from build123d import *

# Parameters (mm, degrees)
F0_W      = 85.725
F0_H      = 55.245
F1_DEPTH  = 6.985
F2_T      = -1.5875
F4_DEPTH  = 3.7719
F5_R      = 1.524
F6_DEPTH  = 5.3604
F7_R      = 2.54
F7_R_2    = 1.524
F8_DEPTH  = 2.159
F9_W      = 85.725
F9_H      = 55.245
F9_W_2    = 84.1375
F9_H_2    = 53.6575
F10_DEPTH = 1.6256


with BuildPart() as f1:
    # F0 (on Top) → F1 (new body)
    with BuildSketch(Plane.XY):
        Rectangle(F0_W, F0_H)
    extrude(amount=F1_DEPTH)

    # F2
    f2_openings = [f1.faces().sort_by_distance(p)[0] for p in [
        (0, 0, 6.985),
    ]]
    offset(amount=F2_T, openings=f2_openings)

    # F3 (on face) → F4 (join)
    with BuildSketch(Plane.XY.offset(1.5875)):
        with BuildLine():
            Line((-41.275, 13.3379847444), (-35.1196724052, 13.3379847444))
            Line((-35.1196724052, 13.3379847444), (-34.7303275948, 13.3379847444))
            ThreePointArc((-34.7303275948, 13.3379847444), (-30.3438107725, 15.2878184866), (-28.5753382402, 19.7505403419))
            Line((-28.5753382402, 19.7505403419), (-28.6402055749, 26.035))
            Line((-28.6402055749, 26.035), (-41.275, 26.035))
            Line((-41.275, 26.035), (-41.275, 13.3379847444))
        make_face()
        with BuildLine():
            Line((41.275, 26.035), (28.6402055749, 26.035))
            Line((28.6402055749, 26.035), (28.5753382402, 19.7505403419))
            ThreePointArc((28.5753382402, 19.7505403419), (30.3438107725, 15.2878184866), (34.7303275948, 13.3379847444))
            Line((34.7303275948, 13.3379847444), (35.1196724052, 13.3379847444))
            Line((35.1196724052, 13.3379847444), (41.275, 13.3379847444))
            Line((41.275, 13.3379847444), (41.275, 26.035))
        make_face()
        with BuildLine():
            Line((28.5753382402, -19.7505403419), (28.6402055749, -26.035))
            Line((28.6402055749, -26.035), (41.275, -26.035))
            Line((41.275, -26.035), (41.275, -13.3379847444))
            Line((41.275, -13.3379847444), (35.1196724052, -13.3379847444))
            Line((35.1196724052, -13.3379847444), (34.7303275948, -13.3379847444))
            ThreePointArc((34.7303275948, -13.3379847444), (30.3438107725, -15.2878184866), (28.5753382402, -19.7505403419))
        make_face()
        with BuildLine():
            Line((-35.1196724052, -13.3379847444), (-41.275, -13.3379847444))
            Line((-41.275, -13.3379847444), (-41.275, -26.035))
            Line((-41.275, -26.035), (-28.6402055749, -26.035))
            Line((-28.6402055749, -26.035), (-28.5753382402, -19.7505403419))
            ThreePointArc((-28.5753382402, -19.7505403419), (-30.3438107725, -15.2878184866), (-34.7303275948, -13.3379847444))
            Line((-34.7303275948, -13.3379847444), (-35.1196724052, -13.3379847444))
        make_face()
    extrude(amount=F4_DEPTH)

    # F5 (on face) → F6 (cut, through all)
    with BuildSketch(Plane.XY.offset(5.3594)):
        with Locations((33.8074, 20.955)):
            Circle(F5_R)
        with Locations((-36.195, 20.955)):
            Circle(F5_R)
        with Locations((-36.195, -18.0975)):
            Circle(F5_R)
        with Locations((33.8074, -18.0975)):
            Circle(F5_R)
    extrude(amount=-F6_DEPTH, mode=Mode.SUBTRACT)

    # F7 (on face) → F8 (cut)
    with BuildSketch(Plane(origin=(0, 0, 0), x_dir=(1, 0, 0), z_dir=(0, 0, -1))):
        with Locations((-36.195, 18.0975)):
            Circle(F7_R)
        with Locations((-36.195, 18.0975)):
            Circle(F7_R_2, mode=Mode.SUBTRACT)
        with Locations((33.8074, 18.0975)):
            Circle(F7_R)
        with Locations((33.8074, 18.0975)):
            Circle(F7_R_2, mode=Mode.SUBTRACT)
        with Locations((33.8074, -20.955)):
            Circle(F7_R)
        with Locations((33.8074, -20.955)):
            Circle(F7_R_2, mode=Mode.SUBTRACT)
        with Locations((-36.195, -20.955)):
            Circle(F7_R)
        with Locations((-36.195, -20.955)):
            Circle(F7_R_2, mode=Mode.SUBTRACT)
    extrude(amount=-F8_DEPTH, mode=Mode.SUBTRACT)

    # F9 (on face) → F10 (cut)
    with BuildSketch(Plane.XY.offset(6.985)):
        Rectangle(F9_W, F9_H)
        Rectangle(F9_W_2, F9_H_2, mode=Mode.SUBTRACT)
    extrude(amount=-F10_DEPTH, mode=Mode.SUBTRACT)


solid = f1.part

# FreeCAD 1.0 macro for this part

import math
import FreeCAD as App
import Part
import Sketcher
Q = App.Units.Quantity


def faces_at(feature, points):
    """Names of the faces that lie closest to the given points."""
    faces = feature.Shape.Faces
    near = lambda p: min(range(len(faces)), key=lambda i: faces[i].distToShape(Part.Vertex(*p))[0])
    return sorted({f"Face{near(p) + 1}" for p in points})

doc = App.newDocument("Part")
body = doc.addObject("PartDesign::Body", "Body")

# Sketch on XY plane
sketch1 = body.newObject("Sketcher::SketchObject", "Sketch")
sketch1.AttachmentSupport = (doc.getObject("XY_Plane"), [""])
sketch1.MapMode = "FlatFace"
sketch1.addGeometry(Part.LineSegment(App.Vector(-43, 28, 0), App.Vector(-43, -28, 0)), False)
sketch1.addGeometry(Part.LineSegment(App.Vector(-43, -28, 0), App.Vector(43, -28, 0)), False)
sketch1.addGeometry(Part.LineSegment(App.Vector(43, -28, 0), App.Vector(43, 28, 0)), False)
sketch1.addGeometry(Part.LineSegment(App.Vector(43, 28, 0), App.Vector(-43, 28, 0)), False)
sketch1.addConstraint(Sketcher.Constraint("Coincident", 0, 2, 1, 1))
sketch1.addConstraint(Sketcher.Constraint("Coincident", 1, 2, 2, 1))
sketch1.addConstraint(Sketcher.Constraint("Coincident", 2, 2, 3, 1))
sketch1.addConstraint(Sketcher.Constraint("Coincident", 3, 2, 0, 1))
sketch1.addConstraint(Sketcher.Constraint("Vertical", 0))
sketch1.addConstraint(Sketcher.Constraint("Horizontal", 1))
sketch1.addConstraint(Sketcher.Constraint("Vertical", 2))
sketch1.addConstraint(Sketcher.Constraint("Horizontal", 3))
sketch1.addConstraint(Sketcher.Constraint("Symmetric", 0, 2, 2, 2, -1, 1))
sketch1.addConstraint(Sketcher.Constraint("DistanceX", 1, 1, 1, 2, Q("3.375 in")))
sketch1.addConstraint(Sketcher.Constraint("DistanceY", 0, 2, 0, 1, Q("2.175 in")))
pad1 = body.newObject("PartDesign::Pad", "Pad")
pad1.Profile = sketch1
pad1.Length = Q("0.275 in")
doc.recompute()

thickness = body.newObject("PartDesign::Thickness", "Thickness")
thickness.Base = (pad1, faces_at(pad1, [(0, 0, 6.985)]))
thickness.Value = Q("0.0625 in")
thickness.Reversed = True
thickness.Join = "Arc"

# Sketch on XY plane
sketch2 = body.newObject("Sketcher::SketchObject", "Sketch001")
sketch2.AttachmentSupport = (doc.getObject("XY_Plane"), [""])
sketch2.MapMode = "FlatFace"
sketch2.AttachmentOffset = App.Placement(App.Vector(0, 0, 0.0625 * 25.4), App.Rotation())
sketch2.addGeometry(Part.LineSegment(App.Vector(-41.275, 13.337985, 0), App.Vector(-34.730328, 13.337985, 0)), False)
sketch2.addGeometry(Part.ArcOfCircle(Part.Circle(App.Vector(-34.925, 19.685, 0), App.Vector(0, 0, 1), 6.35), math.radians(-88.243204), math.radians(0.591378)), False)
sketch2.addGeometry(Part.LineSegment(App.Vector(-28.575338, 19.75054, 0), App.Vector(-28.640206, 26.035, 0)), False)
sketch2.addGeometry(Part.LineSegment(App.Vector(-28.640206, 26.035, 0), App.Vector(-41.275, 26.035, 0)), False)
sketch2.addGeometry(Part.LineSegment(App.Vector(-41.275, 26.035, 0), App.Vector(-41.275, 13.337985, 0)), False)
sketch2.addGeometry(Part.LineSegment(App.Vector(41.275, 26.035, 0), App.Vector(28.640206, 26.035, 0)), False)
sketch2.addGeometry(Part.LineSegment(App.Vector(28.640206, 26.035, 0), App.Vector(28.575338, 19.75054, 0)), False)
sketch2.addGeometry(Part.ArcOfCircle(Part.Circle(App.Vector(34.925, 19.685, 0), App.Vector(0, 0, 1), 6.35), math.radians(179.408622), math.radians(268.243204)), False)
sketch2.addGeometry(Part.LineSegment(App.Vector(34.730328, 13.337985, 0), App.Vector(41.275, 13.337985, 0)), False)
sketch2.addGeometry(Part.LineSegment(App.Vector(41.275, 13.337985, 0), App.Vector(41.275, 26.035, 0)), False)
sketch2.addGeometry(Part.LineSegment(App.Vector(28.575338, -19.75054, 0), App.Vector(28.640206, -26.035, 0)), False)
sketch2.addGeometry(Part.LineSegment(App.Vector(28.640206, -26.035, 0), App.Vector(41.275, -26.035, 0)), False)
sketch2.addGeometry(Part.LineSegment(App.Vector(41.275, -26.035, 0), App.Vector(41.275, -13.337985, 0)), False)
sketch2.addGeometry(Part.LineSegment(App.Vector(41.275, -13.337985, 0), App.Vector(34.730328, -13.337985, 0)), False)
sketch2.addGeometry(Part.ArcOfCircle(Part.Circle(App.Vector(34.925, -19.685, 0), App.Vector(0, 0, 1), 6.35), math.radians(91.756796), math.radians(180.591378)), False)
sketch2.addGeometry(Part.LineSegment(App.Vector(-41.275, -13.337985, 0), App.Vector(-41.275, -26.035, 0)), False)
sketch2.addGeometry(Part.LineSegment(App.Vector(-41.275, -26.035, 0), App.Vector(-28.640206, -26.035, 0)), False)
sketch2.addGeometry(Part.LineSegment(App.Vector(-28.640206, -26.035, 0), App.Vector(-28.575338, -19.75054, 0)), False)
sketch2.addGeometry(Part.ArcOfCircle(Part.Circle(App.Vector(-34.925, -19.685, 0), App.Vector(0, 0, 1), 6.35), math.radians(-0.591378), math.radians(88.243204)), False)
sketch2.addGeometry(Part.LineSegment(App.Vector(-34.730328, -13.337985, 0), App.Vector(-41.275, -13.337985, 0)), False)
sketch2.addConstraint(Sketcher.Constraint("Coincident", 0, 2, 1, 1))
sketch2.addConstraint(Sketcher.Constraint("Tangent", 1, 2, 2, 1))
sketch2.addConstraint(Sketcher.Constraint("Coincident", 2, 2, 3, 1))
sketch2.addConstraint(Sketcher.Constraint("Coincident", 3, 2, 4, 1))
sketch2.addConstraint(Sketcher.Constraint("Coincident", 4, 2, 0, 1))
sketch2.addConstraint(Sketcher.Constraint("Coincident", 5, 2, 6, 1))
sketch2.addConstraint(Sketcher.Constraint("Tangent", 6, 2, 7, 1))
sketch2.addConstraint(Sketcher.Constraint("Coincident", 7, 2, 8, 1))
sketch2.addConstraint(Sketcher.Constraint("Coincident", 8, 2, 9, 1))
sketch2.addConstraint(Sketcher.Constraint("Coincident", 9, 2, 5, 1))
sketch2.addConstraint(Sketcher.Constraint("Coincident", 10, 2, 11, 1))
sketch2.addConstraint(Sketcher.Constraint("Coincident", 11, 2, 12, 1))
sketch2.addConstraint(Sketcher.Constraint("Coincident", 12, 2, 13, 1))
sketch2.addConstraint(Sketcher.Constraint("Coincident", 13, 2, 14, 1))
sketch2.addConstraint(Sketcher.Constraint("Tangent", 14, 2, 10, 1))
sketch2.addConstraint(Sketcher.Constraint("Coincident", 15, 2, 16, 1))
sketch2.addConstraint(Sketcher.Constraint("Coincident", 16, 2, 17, 1))
sketch2.addConstraint(Sketcher.Constraint("Tangent", 17, 2, 18, 1))
sketch2.addConstraint(Sketcher.Constraint("Coincident", 18, 2, 19, 1))
sketch2.addConstraint(Sketcher.Constraint("Coincident", 19, 2, 15, 1))
sketch2.addConstraint(Sketcher.Constraint("Horizontal", 0))
sketch2.addConstraint(Sketcher.Constraint("Horizontal", 3))
sketch2.addConstraint(Sketcher.Constraint("Vertical", 4))
sketch2.addConstraint(Sketcher.Constraint("Horizontal", 5))
sketch2.addConstraint(Sketcher.Constraint("Horizontal", 8))
sketch2.addConstraint(Sketcher.Constraint("Vertical", 9))
sketch2.addConstraint(Sketcher.Constraint("Horizontal", 11))
sketch2.addConstraint(Sketcher.Constraint("Vertical", 12))
sketch2.addConstraint(Sketcher.Constraint("Horizontal", 13))
sketch2.addConstraint(Sketcher.Constraint("Vertical", 15))
sketch2.addConstraint(Sketcher.Constraint("Horizontal", 16))
sketch2.addConstraint(Sketcher.Constraint("Horizontal", 19))
sketch2.addConstraint(Sketcher.Constraint("Equal", 1, 7))
sketch2.addConstraint(Sketcher.Constraint("Equal", 7, 14))
sketch2.addConstraint(Sketcher.Constraint("Equal", 14, 18))
sketch2.addConstraint(Sketcher.Constraint("Symmetric", 1, 3, 14, 3, -1, 1))
sketch2.addConstraint(Sketcher.Constraint("Symmetric", 7, 3, 18, 3, -1, 1))
sketch2.addConstraint(Sketcher.Constraint("Symmetric", 2, 2, 10, 2, -1, 1))
sketch2.addConstraint(Sketcher.Constraint("Symmetric", 4, 2, 12, 2, -1, 1))
sketch2.addConstraint(Sketcher.Constraint("Symmetric", 9, 2, 15, 2, -1, 1))
sketch2.addConstraint(Sketcher.Constraint("Symmetric", 1, 3, 7, 3, -2))
sketch2.addConstraint(Sketcher.Constraint("Symmetric", 2, 2, 5, 2, -2))
sketch2.addConstraint(Sketcher.Constraint("Symmetric", 4, 2, 8, 2, -2))
sketch2.addConstraint(Sketcher.Constraint("Parallel", 6, 17))
sketch2.addConstraint(Sketcher.Constraint("Horizontal", 13, 2, 18, 2))
sketch2.addConstraint(Sketcher.Constraint("Radius", 1, Q("0.25 in")))
sketch2.addConstraint(Sketcher.Constraint("DistanceY", 18, 3, 2, 2, Q("1.8 in")))
sketch2.addConstraint(Sketcher.Constraint("DistanceX", 1, 3, 7, 3, Q("2.75 in")))
sketch2.addConstraint(Sketcher.Constraint("DistanceY", 14, 3, 7, 3, Q("1.55 in")))
sketch2.addConstraint(Sketcher.Constraint("DistanceX", 3, 2, 1, 3, Q("0.25 in")))
sketch2.addConstraint(Sketcher.Constraint("DistanceX", 0, 1, 0, 2, Q("6.544672 mm")))
sketch2.addConstraint(Sketcher.Constraint("DistanceX", 3, 2, 3, 1, Q("12.634794 mm")))
pad2 = body.newObject("PartDesign::Pad", "Pad001")
pad2.Profile = sketch2
pad2.Length = Q("0.1485 in")

# Sketch on XY plane
sketch3 = body.newObject("Sketcher::SketchObject", "Sketch002")
sketch3.AttachmentSupport = (doc.getObject("XY_Plane"), [""])
sketch3.MapMode = "FlatFace"
sketch3.AttachmentOffset = App.Placement(App.Vector(0, 0, 0.211 * 25.4), App.Rotation())
sketch3.addGeometry(Part.Circle(App.Vector(33.8, 21, 0), App.Vector(0, 0, 1), 1.5), False)
sketch3.addGeometry(Part.Circle(App.Vector(-36.2, 21, 0), App.Vector(0, 0, 1), 1.5), False)
sketch3.addGeometry(Part.Circle(App.Vector(-36.2, -18.1, 0), App.Vector(0, 0, 1), 1.5), False)
sketch3.addGeometry(Part.Circle(App.Vector(33.8, -18.1, 0), App.Vector(0, 0, 1), 1.5), False)
sketch3.addConstraint(Sketcher.Constraint("Equal", 0, 1))
sketch3.addConstraint(Sketcher.Constraint("Equal", 1, 2))
sketch3.addConstraint(Sketcher.Constraint("Equal", 2, 3))
sketch3.addConstraint(Sketcher.Constraint("Horizontal", 0, 3, 1, 3))
sketch3.addConstraint(Sketcher.Constraint("Horizontal", 2, 3, 3, 3))
sketch3.addConstraint(Sketcher.Constraint("Vertical", 1, 3, 2, 3))
sketch3.addConstraint(Sketcher.Constraint("Vertical", 0, 3, 3, 3))
sketch3.addConstraint(Sketcher.Constraint("Diameter", 0, Q("0.12 in")))
sketch3.addConstraint(Sketcher.Constraint("DistanceX", -1, 1, 0, 3, Q("1.331 in")))
sketch3.addConstraint(Sketcher.Constraint("DistanceY", -1, 1, 0, 3, Q("0.825 in")))
sketch3.addConstraint(Sketcher.Constraint("DistanceX", 1, 3, -1, 1, Q("1.425 in")))
sketch3.addConstraint(Sketcher.Constraint("DistanceY", 2, 3, -1, 1, Q("0.7125 in")))
pocket1 = body.newObject("PartDesign::Pocket", "Pocket")
pocket1.Profile = sketch3
pocket1.Type = "ThroughAll"

# Sketch on XY plane
sketch4 = body.newObject("Sketcher::SketchObject", "Sketch003")
sketch4.AttachmentSupport = (doc.getObject("XY_Plane"), [""])
sketch4.MapMode = "FlatFace"
sketch4.addGeometry(Part.Circle(App.Vector(-36.2, -18.1, 0), App.Vector(0, 0, 1), 2.5), False)
sketch4.addGeometry(Part.Circle(App.Vector(-36.2, -18.1, 0), App.Vector(0, 0, 1), 1.5), False)
sketch4.addGeometry(Part.Circle(App.Vector(33.8, -18.1, 0), App.Vector(0, 0, 1), 2.5), False)
sketch4.addGeometry(Part.Circle(App.Vector(33.8, -18.1, 0), App.Vector(0, 0, 1), 1.5), False)
sketch4.addGeometry(Part.Circle(App.Vector(33.8, 21, 0), App.Vector(0, 0, 1), 2.5), False)
sketch4.addGeometry(Part.Circle(App.Vector(33.8, 21, 0), App.Vector(0, 0, 1), 1.5), False)
sketch4.addGeometry(Part.Circle(App.Vector(-36.2, 21, 0), App.Vector(0, 0, 1), 2.5), False)
sketch4.addGeometry(Part.Circle(App.Vector(-36.2, 21, 0), App.Vector(0, 0, 1), 1.5), False)
sketch4.addConstraint(Sketcher.Constraint("Coincident", 1, 3, 0, 3))
sketch4.addConstraint(Sketcher.Constraint("Coincident", 3, 3, 2, 3))
sketch4.addConstraint(Sketcher.Constraint("Coincident", 5, 3, 4, 3))
sketch4.addConstraint(Sketcher.Constraint("Coincident", 7, 3, 6, 3))
sketch4.addConstraint(Sketcher.Constraint("Equal", 0, 2))
sketch4.addConstraint(Sketcher.Constraint("Equal", 1, 3))
sketch4.addConstraint(Sketcher.Constraint("Equal", 2, 4))
sketch4.addConstraint(Sketcher.Constraint("Equal", 3, 5))
sketch4.addConstraint(Sketcher.Constraint("Equal", 4, 6))
sketch4.addConstraint(Sketcher.Constraint("Equal", 5, 7))
sketch4.addConstraint(Sketcher.Constraint("Horizontal", 1, 3, 2, 3))
sketch4.addConstraint(Sketcher.Constraint("Horizontal", 5, 3, 6, 3))
sketch4.addConstraint(Sketcher.Constraint("Vertical", 3, 3, 4, 3))
sketch4.addConstraint(Sketcher.Constraint("Vertical", 1, 3, 6, 3))
sketch4.addConstraint(Sketcher.Constraint("Diameter", 0, Q("0.2 in")))
sketch4.addConstraint(Sketcher.Constraint("Diameter", 1, Q("0.12 in")))
sketch4.addConstraint(Sketcher.Constraint("DistanceX", 0, 3, -1, 1, Q("1.425 in")))
sketch4.addConstraint(Sketcher.Constraint("DistanceX", -1, 1, 2, 3, Q("1.331 in")))
sketch4.addConstraint(Sketcher.Constraint("DistanceY", -1, 1, 4, 3, Q("0.825 in")))
sketch4.addConstraint(Sketcher.Constraint("DistanceY", 0, 3, -1, 1, Q("0.7125 in")))
pocket2 = body.newObject("PartDesign::Pocket", "Pocket001")
pocket2.Profile = sketch4
pocket2.Length = Q("0.085 in")
pocket2.Reversed = True

# Sketch on XY plane
sketch5 = body.newObject("Sketcher::SketchObject", "Sketch004")
sketch5.AttachmentSupport = (doc.getObject("XY_Plane"), [""])
sketch5.MapMode = "FlatFace"
sketch5.AttachmentOffset = App.Placement(App.Vector(0, 0, 0.275 * 25.4), App.Rotation())
sketch5.addGeometry(Part.LineSegment(App.Vector(-43, 28, 0), App.Vector(-43, -28, 0)), False)
sketch5.addGeometry(Part.LineSegment(App.Vector(-43, -28, 0), App.Vector(43, -28, 0)), False)
sketch5.addGeometry(Part.LineSegment(App.Vector(43, -28, 0), App.Vector(43, 28, 0)), False)
sketch5.addGeometry(Part.LineSegment(App.Vector(43, 28, 0), App.Vector(-43, 28, 0)), False)
sketch5.addGeometry(Part.LineSegment(App.Vector(42, -27, 0), App.Vector(-42, -27, 0)), False)
sketch5.addGeometry(Part.LineSegment(App.Vector(-42, -27, 0), App.Vector(-42, 27, 0)), False)
sketch5.addGeometry(Part.LineSegment(App.Vector(-42, 27, 0), App.Vector(42, 27, 0)), False)
sketch5.addGeometry(Part.LineSegment(App.Vector(42, 27, 0), App.Vector(42, -27, 0)), False)
sketch5.addConstraint(Sketcher.Constraint("Coincident", 0, 2, 1, 1))
sketch5.addConstraint(Sketcher.Constraint("Coincident", 1, 2, 2, 1))
sketch5.addConstraint(Sketcher.Constraint("Coincident", 2, 2, 3, 1))
sketch5.addConstraint(Sketcher.Constraint("Coincident", 3, 2, 0, 1))
sketch5.addConstraint(Sketcher.Constraint("Coincident", 4, 2, 5, 1))
sketch5.addConstraint(Sketcher.Constraint("Coincident", 5, 2, 6, 1))
sketch5.addConstraint(Sketcher.Constraint("Coincident", 6, 2, 7, 1))
sketch5.addConstraint(Sketcher.Constraint("Coincident", 7, 2, 4, 1))
sketch5.addConstraint(Sketcher.Constraint("Vertical", 0))
sketch5.addConstraint(Sketcher.Constraint("Horizontal", 1))
sketch5.addConstraint(Sketcher.Constraint("Vertical", 2))
sketch5.addConstraint(Sketcher.Constraint("Horizontal", 3))
sketch5.addConstraint(Sketcher.Constraint("Horizontal", 4))
sketch5.addConstraint(Sketcher.Constraint("Vertical", 5))
sketch5.addConstraint(Sketcher.Constraint("Horizontal", 6))
sketch5.addConstraint(Sketcher.Constraint("Vertical", 7))
sketch5.addConstraint(Sketcher.Constraint("Symmetric", 0, 2, 2, 2, -1, 1))
sketch5.addConstraint(Sketcher.Constraint("Symmetric", 4, 2, 6, 2, -1, 1))
sketch5.addConstraint(Sketcher.Constraint("DistanceX", 1, 1, 1, 2, Q("3.375 in")))
sketch5.addConstraint(Sketcher.Constraint("DistanceX", 4, 2, 4, 1, Q("3.3125 in")))
sketch5.addConstraint(Sketcher.Constraint("DistanceY", 0, 2, 0, 1, Q("2.175 in")))
sketch5.addConstraint(Sketcher.Constraint("DistanceY", 5, 1, 5, 2, Q("2.1125 in")))
pocket3 = body.newObject("PartDesign::Pocket", "Pocket002")
pocket3.Profile = sketch5
pocket3.Length = Q("0.064 in")

doc.recompute()
